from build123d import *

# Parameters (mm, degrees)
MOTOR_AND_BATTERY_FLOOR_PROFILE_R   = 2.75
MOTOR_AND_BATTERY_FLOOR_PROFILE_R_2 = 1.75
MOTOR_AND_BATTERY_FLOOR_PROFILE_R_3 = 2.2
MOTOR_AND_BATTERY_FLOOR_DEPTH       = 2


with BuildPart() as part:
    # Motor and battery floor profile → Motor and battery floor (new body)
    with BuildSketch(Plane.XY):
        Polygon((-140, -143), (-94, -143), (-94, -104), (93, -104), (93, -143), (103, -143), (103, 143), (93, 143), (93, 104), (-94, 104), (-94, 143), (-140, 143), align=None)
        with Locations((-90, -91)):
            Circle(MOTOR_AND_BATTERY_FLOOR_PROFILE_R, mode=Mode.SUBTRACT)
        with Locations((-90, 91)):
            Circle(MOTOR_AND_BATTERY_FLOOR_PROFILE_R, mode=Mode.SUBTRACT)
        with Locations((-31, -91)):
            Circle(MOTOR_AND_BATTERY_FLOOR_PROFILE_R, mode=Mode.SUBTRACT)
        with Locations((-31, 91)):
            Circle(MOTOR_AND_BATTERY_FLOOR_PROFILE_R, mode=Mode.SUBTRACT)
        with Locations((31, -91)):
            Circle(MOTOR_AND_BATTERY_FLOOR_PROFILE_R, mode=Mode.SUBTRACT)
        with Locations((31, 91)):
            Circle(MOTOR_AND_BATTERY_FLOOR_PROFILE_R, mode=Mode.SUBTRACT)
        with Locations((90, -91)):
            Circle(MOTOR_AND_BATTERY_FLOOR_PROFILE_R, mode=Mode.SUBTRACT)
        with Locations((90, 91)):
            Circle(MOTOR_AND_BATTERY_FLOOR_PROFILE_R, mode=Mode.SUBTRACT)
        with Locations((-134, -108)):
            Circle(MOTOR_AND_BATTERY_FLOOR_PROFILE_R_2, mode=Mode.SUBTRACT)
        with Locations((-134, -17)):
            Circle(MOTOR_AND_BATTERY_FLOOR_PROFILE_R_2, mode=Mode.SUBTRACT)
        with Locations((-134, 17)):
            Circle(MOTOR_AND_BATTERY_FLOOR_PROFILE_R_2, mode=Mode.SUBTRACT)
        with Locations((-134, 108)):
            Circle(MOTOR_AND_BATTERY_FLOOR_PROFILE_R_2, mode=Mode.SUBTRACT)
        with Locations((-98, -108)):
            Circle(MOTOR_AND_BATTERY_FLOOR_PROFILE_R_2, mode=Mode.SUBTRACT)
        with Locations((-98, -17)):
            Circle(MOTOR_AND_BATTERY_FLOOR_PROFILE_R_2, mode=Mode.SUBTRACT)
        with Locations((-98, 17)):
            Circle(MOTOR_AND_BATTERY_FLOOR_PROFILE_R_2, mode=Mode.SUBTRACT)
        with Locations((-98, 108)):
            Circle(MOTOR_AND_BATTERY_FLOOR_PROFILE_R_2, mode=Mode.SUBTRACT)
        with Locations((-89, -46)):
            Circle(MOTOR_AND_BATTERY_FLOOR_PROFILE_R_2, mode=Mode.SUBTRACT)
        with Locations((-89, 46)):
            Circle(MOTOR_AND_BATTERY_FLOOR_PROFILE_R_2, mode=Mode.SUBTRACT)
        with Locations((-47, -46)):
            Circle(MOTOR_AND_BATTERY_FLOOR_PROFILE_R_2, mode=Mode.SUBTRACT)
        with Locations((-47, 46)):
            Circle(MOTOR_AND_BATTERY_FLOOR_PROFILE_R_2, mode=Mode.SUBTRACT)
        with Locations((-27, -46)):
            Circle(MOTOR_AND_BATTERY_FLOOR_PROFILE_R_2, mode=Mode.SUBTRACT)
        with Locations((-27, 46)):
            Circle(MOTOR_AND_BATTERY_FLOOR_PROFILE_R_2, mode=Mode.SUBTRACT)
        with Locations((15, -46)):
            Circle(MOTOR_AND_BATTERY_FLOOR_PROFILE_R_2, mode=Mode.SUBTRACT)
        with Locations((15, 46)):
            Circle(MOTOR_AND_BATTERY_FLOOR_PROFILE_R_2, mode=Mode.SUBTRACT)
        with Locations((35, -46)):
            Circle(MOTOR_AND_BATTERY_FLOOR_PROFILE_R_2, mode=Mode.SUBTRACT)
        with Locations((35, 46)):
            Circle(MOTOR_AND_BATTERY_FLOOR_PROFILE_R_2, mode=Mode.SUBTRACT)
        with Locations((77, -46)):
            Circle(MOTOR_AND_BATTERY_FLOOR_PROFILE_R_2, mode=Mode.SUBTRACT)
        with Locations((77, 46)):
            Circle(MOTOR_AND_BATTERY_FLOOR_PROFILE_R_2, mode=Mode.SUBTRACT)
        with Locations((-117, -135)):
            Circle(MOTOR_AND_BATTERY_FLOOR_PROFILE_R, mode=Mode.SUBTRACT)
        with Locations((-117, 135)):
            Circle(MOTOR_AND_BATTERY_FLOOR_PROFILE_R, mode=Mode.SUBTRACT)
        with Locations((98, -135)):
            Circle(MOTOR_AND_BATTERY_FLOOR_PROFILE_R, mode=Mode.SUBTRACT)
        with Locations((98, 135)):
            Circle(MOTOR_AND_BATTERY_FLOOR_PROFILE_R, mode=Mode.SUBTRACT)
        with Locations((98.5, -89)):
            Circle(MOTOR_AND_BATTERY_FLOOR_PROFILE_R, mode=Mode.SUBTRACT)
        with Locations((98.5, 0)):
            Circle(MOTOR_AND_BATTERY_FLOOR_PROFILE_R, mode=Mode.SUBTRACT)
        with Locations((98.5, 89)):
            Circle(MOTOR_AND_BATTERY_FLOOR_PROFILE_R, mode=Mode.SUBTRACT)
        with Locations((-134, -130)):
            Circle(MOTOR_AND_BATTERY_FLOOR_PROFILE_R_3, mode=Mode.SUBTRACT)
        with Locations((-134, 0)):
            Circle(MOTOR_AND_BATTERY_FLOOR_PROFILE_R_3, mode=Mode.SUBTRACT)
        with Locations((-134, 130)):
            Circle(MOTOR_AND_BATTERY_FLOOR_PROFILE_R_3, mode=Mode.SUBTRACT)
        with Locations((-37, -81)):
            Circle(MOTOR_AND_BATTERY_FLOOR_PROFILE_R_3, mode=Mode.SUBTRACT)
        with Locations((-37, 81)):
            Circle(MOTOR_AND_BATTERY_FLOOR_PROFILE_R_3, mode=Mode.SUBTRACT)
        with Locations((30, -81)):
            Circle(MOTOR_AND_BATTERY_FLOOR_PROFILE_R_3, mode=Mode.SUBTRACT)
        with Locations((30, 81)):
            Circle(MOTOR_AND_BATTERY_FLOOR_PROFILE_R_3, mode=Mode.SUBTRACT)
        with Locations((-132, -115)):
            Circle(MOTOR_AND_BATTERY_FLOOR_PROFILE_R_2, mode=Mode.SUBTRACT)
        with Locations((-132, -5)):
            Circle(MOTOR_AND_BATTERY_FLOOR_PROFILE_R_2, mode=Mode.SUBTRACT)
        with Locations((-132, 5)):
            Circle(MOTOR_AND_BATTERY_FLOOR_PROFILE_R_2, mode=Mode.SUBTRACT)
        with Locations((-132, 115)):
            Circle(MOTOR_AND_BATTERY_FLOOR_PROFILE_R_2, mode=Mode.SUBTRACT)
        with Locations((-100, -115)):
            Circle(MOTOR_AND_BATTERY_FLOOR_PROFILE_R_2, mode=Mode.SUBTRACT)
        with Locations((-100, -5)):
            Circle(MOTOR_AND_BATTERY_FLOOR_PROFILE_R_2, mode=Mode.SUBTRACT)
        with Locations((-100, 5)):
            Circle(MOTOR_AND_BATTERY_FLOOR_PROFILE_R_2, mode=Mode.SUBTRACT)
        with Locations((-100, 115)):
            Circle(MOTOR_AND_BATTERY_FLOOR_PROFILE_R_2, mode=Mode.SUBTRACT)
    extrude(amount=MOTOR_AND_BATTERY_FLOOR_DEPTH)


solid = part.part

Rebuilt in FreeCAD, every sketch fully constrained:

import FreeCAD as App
import Part
import Sketcher
Q = App.Units.Quantity

doc = App.newDocument("Part")
params = doc.addObject("Spreadsheet::Sheet", "Params")
for row, (alias, value) in enumerate([
    ("sketch1_diameter", "4.4 mm"),
    ("sketch1_diameter2", "5.5 mm"),
    ("sketch1_diameter3", "3.5 mm"),
    ("sketch1_width", "46 mm"),
    ("sketch1_width2", "187 mm"),
    ("pad1_length", "2 mm"),
], start=1):
    params.set(f"A{row}", alias)
    params.set(f"B{row}", "=" + value)
    params.setAlias(f"B{row}", alias)

body = doc.addObject("PartDesign::Body", "Body")

# Sketch on XY plane
sketch1 = doc.addObject("Sketcher::SketchObject", "Sketch")
body.addObject(sketch1)
sketch1.AttachmentSupport = (doc.XY_Plane, [""])
sketch1.MapMode = "FlatFace"
sketch1.addGeometry(Part.LineSegment(App.Vector(-140, -143, 0), App.Vector(-94, -143, 0)), False)
sketch1.addGeometry(Part.LineSegment(App.Vector(-94, -143, 0), App.Vector(-94, -104, 0)), False)
sketch1.addGeometry(Part.LineSegment(App.Vector(-94, -104, 0), App.Vector(93, -104, 0)), False)
sketch1.addGeometry(Part.LineSegment(App.Vector(93, -104, 0), App.Vector(93, -143, 0)), False)
sketch1.addGeometry(Part.LineSegment(App.Vector(93, -143, 0), App.Vector(103, -143, 0)), False)
sketch1.addGeometry(Part.LineSegment(App.Vector(103, -143, 0), App.Vector(103, 143, 0)), False)
sketch1.addGeometry(Part.LineSegment(App.Vector(103, 143, 0), App.Vector(93, 143, 0)), False)
sketch1.addGeometry(Part.LineSegment(App.Vector(93, 143, 0), App.Vector(93, 104, 0)), False)
sketch1.addGeometry(Part.LineSegment(App.Vector(93, 104, 0), App.Vector(-94, 104, 0)), False)
sketch1.addGeometry(Part.LineSegment(App.Vector(-94, 104, 0), App.Vector(-94, 143, 0)), False)
sketch1.addGeometry(Part.LineSegment(App.Vector(-94, 143, 0), App.Vector(-140, 143, 0)), False)
sketch1.addGeometry(Part.LineSegment(App.Vector(-140, 143, 0), App.Vector(-140, -143, 0)), False)
sketch1.addGeometry(Part.Circle(App.Vector(-134, -130, 0), App.Vector(0, 0, 1), 2.2), False)
sketch1.addGeometry(Part.Circle(App.Vector(-117, -135, 0), App.Vector(0, 0, 1), 2.8), False)
sketch1.addGeometry(Part.Circle(App.Vector(-132, -115, 0), App.Vector(0, 0, 1), 1.8), False)
sketch1.addGeometry(Part.Circle(App.Vector(-134, -108, 0), App.Vector(0, 0, 1), 1.8), False)
sketch1.addGeometry(Part.Circle(App.Vector(-100, -115, 0), App.Vector(0, 0, 1), 1.8), False)
sketch1.addGeometry(Part.Circle(App.Vector(-98, -108, 0), App.Vector(0, 0, 1), 1.8), False)
sketch1.addGeometry(Part.Circle(App.Vector(-90, -91, 0), App.Vector(0, 0, 1), 2.8), False)
sketch1.addGeometry(Part.Circle(App.Vector(-31, -91, 0), App.Vector(0, 0, 1), 2.8), False)
sketch1.addGeometry(Part.Circle(App.Vector(-37, -81, 0), App.Vector(0, 0, 1), 2.2), False)
sketch1.addGeometry(Part.Circle(App.Vector(-89, -46, 0), App.Vector(0, 0, 1), 1.8), False)
sketch1.addGeometry(Part.Circle(App.Vector(-134, -17, 0), App.Vector(0, 0, 1), 1.8), False)
sketch1.addGeometry(Part.Circle(App.Vector(-132, -5, 0), App.Vector(0, 0, 1), 1.8), False)
sketch1.addGeometry(Part.Circle(App.Vector(-98, -17, 0), App.Vector(0, 0, 1), 1.8), False)
sketch1.addGeometry(Part.Circle(App.Vector(-100, -5, 0), App.Vector(0, 0, 1), 1.8), False)
sketch1.addGeometry(Part.Circle(App.Vector(-47, -46, 0), App.Vector(0, 0, 1), 1.8), False)
sketch1.addGeometry(Part.Circle(App.Vector(-27, -46, 0), App.Vector(0, 0, 1), 1.8), False)
sketch1.addGeometry(Part.Circle(App.Vector(31, -91, 0), App.Vector(0, 0, 1), 2.8), False)
sketch1.addGeometry(Part.Circle(App.Vector(30, -81, 0), App.Vector(0, 0, 1), 2.2), False)
sketch1.addGeometry(Part.Circle(App.Vector(98, -135, 0), App.Vector(0, 0, 1), 2.8), False)
sketch1.addGeometry(Part.Circle(App.Vector(90, -91, 0), App.Vector(0, 0, 1), 2.8), False)
sketch1.addGeometry(Part.Circle(App.Vector(98.5, -89, 0), App.Vector(0, 0, 1), 2.8), False)
sketch1.addGeometry(Part.Circle(App.Vector(15, -46, 0), App.Vector(0, 0, 1), 1.8), False)
sketch1.addGeometry(Part.Circle(App.Vector(35, -46, 0), App.Vector(0, 0, 1), 1.8), False)
sketch1.addGeometry(Part.Circle(App.Vector(77, -46, 0), App.Vector(0, 0, 1), 1.8), False)
sketch1.addGeometry(Part.Circle(App.Vector(-134, 0, 0), App.Vector(0, 0, 1), 2.2), False)
sketch1.addGeometry(Part.Circle(App.Vector(-132, 5, 0), App.Vector(0, 0, 1), 1.8), False)
sketch1.addGeometry(Part.Circle(App.Vector(-134, 17, 0), App.Vector(0, 0, 1), 1.8), False)
sketch1.addGeometry(Part.Circle(App.Vector(-100, 5, 0), App.Vector(0, 0, 1), 1.8), False)
sketch1.addGeometry(Part.Circle(App.Vector(-98, 17, 0), App.Vector(0, 0, 1), 1.8), False)
sketch1.addGeometry(Part.Circle(App.Vector(-89, 46, 0), App.Vector(0, 0, 1), 1.8), False)
sketch1.addGeometry(Part.Circle(App.Vector(-47, 46, 0), App.Vector(0, 0, 1), 1.8), False)
sketch1.addGeometry(Part.Circle(App.Vector(-27, 46, 0), App.Vector(0, 0, 1), 1.8), False)
sketch1.addGeometry(Part.Circle(App.Vector(-90, 91, 0), App.Vector(0, 0, 1), 2.8), False)
sketch1.addGeometry(Part.Circle(App.Vector(-134, 108, 0), App.Vector(0, 0, 1), 1.8), False)
sketch1.addGeometry(Part.Circle(App.Vector(-132, 115, 0), App.Vector(0, 0, 1), 1.8), False)
sketch1.addGeometry(Part.Circle(App.Vector(-134, 130, 0), App.Vector(0, 0, 1), 2.2), False)
sketch1.addGeometry(Part.Circle(App.Vector(-117, 135, 0), App.Vector(0, 0, 1), 2.8), False)
sketch1.addGeometry(Part.Circle(App.Vector(-98, 108, 0), App.Vector(0, 0, 1), 1.8), False)
sketch1.addGeometry(Part.Circle(App.Vector(-100, 115, 0), App.Vector(0, 0, 1), 1.8), False)
sketch1.addGeometry(Part.Circle(App.Vector(-37, 81, 0), App.Vector(0, 0, 1), 2.2), False)
sketch1.addGeometry(Part.Circle(App.Vector(-31, 91, 0), App.Vector(0, 0, 1), 2.8), False)
sketch1.addGeometry(Part.Circle(App.Vector(15, 46, 0), App.Vector(0, 0, 1), 1.8), False)
sketch1.addGeometry(Part.Circle(App.Vector(35, 46, 0), App.Vector(0, 0, 1), 1.8), False)
sketch1.addGeometry(Part.Circle(App.Vector(98.5, 0, 0), App.Vector(0, 0, 1), 2.8), False)
sketch1.addGeometry(Part.Circle(App.Vector(77, 46, 0), App.Vector(0, 0, 1), 1.8), False)
sketch1.addGeometry(Part.Circle(App.Vector(30, 81, 0), App.Vector(0, 0, 1), 2.2), False)
sketch1.addGeometry(Part.Circle(App.Vector(31, 91, 0), App.Vector(0, 0, 1), 2.8), False)
sketch1.addGeometry(Part.Circle(App.Vector(90, 91, 0), App.Vector(0, 0, 1), 2.8), False)
sketch1.addGeometry(Part.Circle(App.Vector(98.5, 89, 0), App.Vector(0, 0, 1), 2.8), False)
sketch1.addGeometry(Part.Circle(App.Vector(98, 135, 0), App.Vector(0, 0, 1), 2.8), False)
sketch1.addConstraint(Sketcher.Constraint("Coincident", 0, 2, 1, 1))
sketch1.addConstraint(Sketcher.Constraint("Coincident", 1, 2, 2, 1))
sketch1.addConstraint(Sketcher.Constraint("Coincident", 2, 2, 3, 1))
sketch1.addConstraint(Sketcher.Constraint("Coincident", 3, 2, 4, 1))
sketch1.addConstraint(Sketcher.Constraint("Coincident", 4, 2, 5, 1))
sketch1.addConstraint(Sketcher.Constraint("Coincident", 5, 2, 6, 1))
sketch1.addConstraint(Sketcher.Constraint("Coincident", 6, 2, 7, 1))
sketch1.addConstraint(Sketcher.Constraint("Coincident", 7, 2, 8, 1))
sketch1.addConstraint(Sketcher.Constraint("Coincident", 8, 2, 9, 1))
sketch1.addConstraint(Sketcher.Constraint("Coincident", 9, 2, 10, 1))
sketch1.addConstraint(Sketcher.Constraint("Coincident", 10, 2, 11, 1))
sketch1.addConstraint(Sketcher.Constraint("Coincident", 11, 2, 0, 1))
sketch1.addConstraint(Sketcher.Constraint("Horizontal", 0))
sketch1.addConstraint(Sketcher.Constraint("Vertical", 1))
sketch1.addConstraint(Sketcher.Constraint("Horizontal", 2))
sketch1.addConstraint(Sketcher.Constraint("Vertical", 3))
sketch1.addConstraint(Sketcher.Constraint("Horizontal", 4))
sketch1.addConstraint(Sketcher.Constraint("Vertical", 5))
sketch1.addConstraint(Sketcher.Constraint("Horizontal", 6))
sketch1.addConstraint(Sketcher.Constraint("Vertical", 7))
sketch1.addConstraint(Sketcher.Constraint("Horizontal", 8))
sketch1.addConstraint(Sketcher.Constraint("Vertical", 9))
sketch1.addConstraint(Sketcher.Constraint("Horizontal", 10))
sketch1.addConstraint(Sketcher.Constraint("Vertical", 11))
sketch1.addConstraint(Sketcher.Constraint("Equal", 14, 15))
sketch1.addConstraint(Sketcher.Constraint("Equal", 15, 16))
sketch1.addConstraint(Sketcher.Constraint("Equal", 16, 17))
sketch1.addConstraint(Sketcher.Constraint("Equal", 13, 18))
sketch1.addConstraint(Sketcher.Constraint("Equal", 18, 19))
sketch1.addConstraint(Sketcher.Constraint("Equal", 12, 20))
sketch1.addConstraint(Sketcher.Constraint("Equal", 17, 21))
sketch1.addConstraint(Sketcher.Constraint("Equal", 21, 22))
sketch1.addConstraint(Sketcher.Constraint("Equal", 22, 23))
sketch1.addConstraint(Sketcher.Constraint("Equal", 23, 24))
sketch1.addConstraint(Sketcher.Constraint("Equal", 24, 25))
sketch1.addConstraint(Sketcher.Constraint("Equal", 25, 26))
sketch1.addConstraint(Sketcher.Constraint("Equal", 26, 27))
sketch1.addConstraint(Sketcher.Constraint("Equal", 19, 28))
sketch1.addConstraint(Sketcher.Constraint("Equal", 20, 29))
sketch1.addConstraint(Sketcher.Constraint("Equal", 28, 30))
sketch1.addConstraint(Sketcher.Constraint("Equal", 30, 31))
sketch1.addConstraint(Sketcher.Constraint("Equal", 31, 32))
sketch1.addConstraint(Sketcher.Constraint("Equal", 27, 33))
sketch1.addConstraint(Sketcher.Constraint("Equal", 33, 34))
sketch1.addConstraint(Sketcher.Constraint("Equal", 34, 35))
sketch1.addConstraint(Sketcher.Constraint("Equal", 29, 36))
sketch1.addConstraint(Sketcher.Constraint("Equal", 35, 37))
sketch1.addConstraint(Sketcher.Constraint("Equal", 37, 38))
sketch1.addConstraint(Sketcher.Constraint("Equal", 38, 39))
sketch1.addConstraint(Sketcher.Constraint("Equal", 39, 40))
sketch1.addConstraint(Sketcher.Constraint("Equal", 40, 41))
sketch1.addConstraint(Sketcher.Constraint("Equal", 41, 42))
sketch1.addConstraint(Sketcher.Constraint("Equal", 42, 43))
sketch1.addConstraint(Sketcher.Constraint("Equal", 32, 44))
sketch1.addConstraint(Sketcher.Constraint("Equal", 43, 45))
sketch1.addConstraint(Sketcher.Constraint("Equal", 45, 46))
sketch1.addConstraint(Sketcher.Constraint("Equal", 36, 47))
sketch1.addConstraint(Sketcher.Constraint("Equal", 44, 48))
sketch1.addConstraint(Sketcher.Constraint("Equal", 46, 49))
sketch1.addConstraint(Sketcher.Constraint("Equal", 49, 50))
sketch1.addConstraint(Sketcher.Constraint("Equal", 47, 51))
sketch1.addConstraint(Sketcher.Constraint("Equal", 48, 52))
sketch1.addConstraint(Sketcher.Constraint("Equal", 50, 53))
sketch1.addConstraint(Sketcher.Constraint("Equal", 53, 54))
sketch1.addConstraint(Sketcher.Constraint("Equal", 52, 55))
sketch1.addConstraint(Sketcher.Constraint("Equal", 54, 56))
sketch1.addConstraint(Sketcher.Constraint("Equal", 51, 57))
sketch1.addConstraint(Sketcher.Constraint("Equal", 55, 58))
sketch1.addConstraint(Sketcher.Constraint("Equal", 58, 59))
sketch1.addConstraint(Sketcher.Constraint("Equal", 59, 60))
sketch1.addConstraint(Sketcher.Constraint("Equal", 60, 61))
sketch1.addConstraint(Sketcher.Constraint("Symmetric", 31, 3, 44, 3, -1, 1))
sketch1.addConstraint(Sketcher.Constraint("Symmetric", 28, 3, 52, 3, -1, 1))
sketch1.addConstraint(Sketcher.Constraint("Symmetric", 19, 3, 58, 3, -1, 1))
sketch1.addConstraint(Sketcher.Constraint("Symmetric", 18, 3, 59, 3, -1, 1))
sketch1.addConstraint(Sketcher.Constraint("Symmetric", 19, 3, 28, 3, -2))
sketch1.addConstraint(Sketcher.Constraint("Symmetric", 18, 3, 31, 3, -2))
sketch1.addConstraint(Sketcher.Constraint("Symmetric", 23, 3, 37, 3, -1))
sketch1.addConstraint(Sketcher.Constraint("Symmetric", 22, 3, 38, 3, -1))
sketch1.addConstraint(Sketcher.Constraint("Symmetric", 25, 3, 39, 3, -1))
sketch1.addConstraint(Sketcher.Constraint("Symmetric", 24, 3, 40, 3, -1))
sketch1.addConstraint(Sketcher.Constraint("Symmetric", 21, 3, 41, 3, -1))
sketch1.addConstraint(Sketcher.Constraint("Symmetric", 26, 3, 42, 3, -1))
sketch1.addConstraint(Sketcher.Constraint("Symmetric", 27, 3, 43, 3, -1))
sketch1.addConstraint(Sketcher.Constraint("Symmetric", 15, 3, 45, 3, -1))
sketch1.addConstraint(Sketcher.Constraint("Symmetric", 14, 3, 46, 3, -1))
sketch1.addConstraint(Sketcher.Constraint("Symmetric", 12, 3, 47, 3, -1))
sketch1.addConstraint(Sketcher.Constraint("Symmetric", 13, 3, 48, 3, -1))
sketch1.addConstraint(Sketcher.Constraint("Symmetric", 17, 3, 49, 3, -1))
sketch1.addConstraint(Sketcher.Constraint("Symmetric", 16, 3, 50, 3, -1))
sketch1.addConstraint(Sketcher.Constraint("Symmetric", 20, 3, 51, 3, -1))
sketch1.addConstraint(Sketcher.Constraint("Symmetric", 33, 3, 53, 3, -1))
sketch1.addConstraint(Sketcher.Constraint("Symmetric", 34, 3, 54, 3, -1))
sketch1.addConstraint(Sketcher.Constraint("Symmetric", 35, 3, 56, 3, -1))
sketch1.addConstraint(Sketcher.Constraint("Symmetric", 29, 3, 57, 3, -1))
sketch1.addConstraint(Sketcher.Constraint("Symmetric", 32, 3, 60, 3, -1))
sketch1.addConstraint(Sketcher.Constraint("Symmetric", 30, 3, 61, 3, -1))
sketch1.addConstraint(Sketcher.Constraint("Symmetric", 3, 2, 6, 2, -1))
sketch1.addConstraint(Sketcher.Constraint("Symmetric", 1, 2, 8, 2, -1))
sketch1.addConstraint(Sketcher.Constraint("PointOnObject", 36, 3, -1))
sketch1.addConstraint(Sketcher.Constraint("PointOnObject", 55, 3, -1))
sketch1.addConstraint(Sketcher.Constraint("Horizontal", 14, 3, 16, 3))
sketch1.addConstraint(Sketcher.Constraint("Horizontal", 15, 3, 17, 3))
sketch1.addConstraint(Sketcher.Constraint("Horizontal", 18, 3, 19, 3))
sketch1.addConstraint(Sketcher.Constraint("Horizontal", 22, 3, 24, 3))
sketch1.addConstraint(Sketcher.Constraint("Horizontal", 23, 3, 25, 3))
sketch1.addConstraint(Sketcher.Constraint("Horizontal", 21, 3, 26, 3))
sketch1.addConstraint(Sketcher.Constraint("Horizontal", 26, 3, 27, 3))
sketch1.addConstraint(Sketcher.Constraint("Horizontal", 20, 3, 29, 3))
sketch1.addConstraint(Sketcher.Constraint("Horizontal", 13, 3, 30, 3))
sketch1.addConstraint(Sketcher.Constraint("Horizontal", 27, 3, 33, 3))
sketch1.addConstraint(Sketcher.Constraint("Horizontal", 33, 3, 34, 3))
sketch1.addConstraint(Sketcher.Constraint("Horizontal", 34, 3, 35, 3))
sketch1.addConstraint(Sketcher.Constraint("Horizontal", 0, 2, 3, 2))
sketch1.addConstraint(Sketcher.Constraint("Horizontal", 6, 2, 9, 2))
sketch1.addConstraint(Sketcher.Constraint("Vertical", 12, 3, 15, 3))
sketch1.addConstraint(Sketcher.Constraint("Vertical", 15, 3, 22, 3))
sketch1.addConstraint(Sketcher.Constraint("Vertical", 14, 3, 23, 3))
sketch1.addConstraint(Sketcher.Constraint("Vertical", 17, 3, 24, 3))
sketch1.addConstraint(Sketcher.Constraint("Vertical", 16, 3, 25, 3))
sketch1.addConstraint(Sketcher.Constraint("Vertical", 22, 3, 36, 3))
sketch1.addConstraint(Sketcher.Constraint("Vertical", 32, 3, 55, 3))
sketch1.addConstraint(Sketcher.Constraint("Diameter", 12, Q("4.4 mm")))
sketch1.addConstraint(Sketcher.Constraint("Diameter", 13, Q("5.5 mm")))
sketch1.addConstraint(Sketcher.Constraint("Diameter", 14, Q("3.5 mm")))
sketch1.addConstraint(Sketcher.Constraint("DistanceX", 0, 1, 0, 2, Q("46 mm")))
sketch1.addConstraint(Sketcher.Constraint("DistanceX", 2, 1, 2, 2, Q("187 mm")))
sketch1.addConstraint(Sketcher.Constraint("DistanceX", 4, 1, 4, 2, Q("10 mm")))
sketch1.addConstraint(Sketcher.Constraint("DistanceY", 1, 1, 1, 2, Q("39 mm")))
sketch1.addConstraint(Sketcher.Constraint("DistanceY", 5, 1, 5, 2, Q("286 mm")))
sketch1.addConstraint(Sketcher.Constraint("DistanceX", 12, 3, -1, 1, Q("134 mm")))
sketch1.addConstraint(Sketcher.Constraint("DistanceY", 12, 3, -1, 1, Q("130 mm")))
sketch1.addConstraint(Sketcher.Constraint("DistanceX", 13, 3, -1, 1, Q("117 mm")))
sketch1.addConstraint(Sketcher.Constraint("DistanceY", 13, 3, -1, 1, Q("135 mm")))
sketch1.addConstraint(Sketcher.Constraint("DistanceX", 14, 3, -1, 1, Q("132 mm")))
sketch1.addConstraint(Sketcher.Constraint("DistanceY", 14, 3, -1, 1, Q("115 mm")))
sketch1.addConstraint(Sketcher.Constraint("DistanceY", 15, 3, -1, 1, Q("108 mm")))
sketch1.addConstraint(Sketcher.Constraint("DistanceX", 16, 3, -1, 1, Q("100 mm")))
sketch1.addConstraint(Sketcher.Constraint("DistanceX", 17, 3, -1, 1, Q("98 mm")))
sketch1.addConstraint(Sketcher.Constraint("DistanceX", 18, 3, -1, 1, Q("90 mm")))
sketch1.addConstraint(Sketcher.Constraint("DistanceY", 18, 3, -1, 1, Q("91 mm")))
sketch1.addConstraint(Sketcher.Constraint("DistanceX", 19, 3, -1, 1, Q("31 mm")))
sketch1.addConstraint(Sketcher.Constraint("DistanceX", 20, 3, -1, 1, Q("37 mm")))
sketch1.addConstraint(Sketcher.Constraint("DistanceY", 20, 3, -1, 1, Q("81 mm")))
sketch1.addConstraint(Sketcher.Constraint("DistanceX", 21, 3, -1, 1, Q("89 mm")))
sketch1.addConstraint(Sketcher.Constraint("DistanceY", 21, 3, -1, 1, Q("46 mm")))
sketch1.addConstraint(Sketcher.Constraint("DistanceY", 22, 3, -1, 1, Q("17 mm")))
sketch1.addConstraint(Sketcher.Constraint("DistanceY", 23, 3, -1, 1, Q("5 mm")))
sketch1.addConstraint(Sketcher.Constraint("DistanceX", 26, 3, -1, 1, Q("47 mm")))
sketch1.addConstraint(Sketcher.Constraint("DistanceX", 27, 3, -1, 1, Q("27 mm")))
sketch1.addConstraint(Sketcher.Constraint("DistanceX", -1, 1, 29, 3, Q("30 mm")))
sketch1.addConstraint(Sketcher.Constraint("DistanceX", -1, 1, 30, 3, Q("98 mm")))
sketch1.addConstraint(Sketcher.Constraint("DistanceY", 32, 3, -1, 1, Q("89 mm")))
sketch1.addConstraint(Sketcher.Constraint("DistanceX", -1, 1, 33, 3, Q("15 mm")))
sketch1.addConstraint(Sketcher.Constraint("DistanceX", -1, 1, 34, 3, Q("35 mm")))
sketch1.addConstraint(Sketcher.Constraint("DistanceX", -1, 1, 35, 3, Q("77 mm")))
sketch1.addConstraint(Sketcher.Constraint("DistanceX", 0, 2, -1, 1, Q("94 mm")))
sketch1.addConstraint(Sketcher.Constraint("DistanceX", -1, 1, 32, 3, Q("98.5 mm")))
sketch1.setExpression("Constraints[122]", "Params.sketch1_diameter")
sketch1.setExpression("Constraints[123]", "Params.sketch1_diameter2")
sketch1.setExpression("Constraints[124]", "Params.sketch1_diameter3")
sketch1.setExpression("Constraints[125]", "Params.sketch1_width")
sketch1.setExpression("Constraints[126]", "Params.sketch1_width2")
pad1 = doc.addObject("PartDesign::Pad", "Pad")
body.addObject(pad1)
pad1.Profile = sketch1
pad1.setExpression("Length", "Params.pad1_length")

doc.recompute()
